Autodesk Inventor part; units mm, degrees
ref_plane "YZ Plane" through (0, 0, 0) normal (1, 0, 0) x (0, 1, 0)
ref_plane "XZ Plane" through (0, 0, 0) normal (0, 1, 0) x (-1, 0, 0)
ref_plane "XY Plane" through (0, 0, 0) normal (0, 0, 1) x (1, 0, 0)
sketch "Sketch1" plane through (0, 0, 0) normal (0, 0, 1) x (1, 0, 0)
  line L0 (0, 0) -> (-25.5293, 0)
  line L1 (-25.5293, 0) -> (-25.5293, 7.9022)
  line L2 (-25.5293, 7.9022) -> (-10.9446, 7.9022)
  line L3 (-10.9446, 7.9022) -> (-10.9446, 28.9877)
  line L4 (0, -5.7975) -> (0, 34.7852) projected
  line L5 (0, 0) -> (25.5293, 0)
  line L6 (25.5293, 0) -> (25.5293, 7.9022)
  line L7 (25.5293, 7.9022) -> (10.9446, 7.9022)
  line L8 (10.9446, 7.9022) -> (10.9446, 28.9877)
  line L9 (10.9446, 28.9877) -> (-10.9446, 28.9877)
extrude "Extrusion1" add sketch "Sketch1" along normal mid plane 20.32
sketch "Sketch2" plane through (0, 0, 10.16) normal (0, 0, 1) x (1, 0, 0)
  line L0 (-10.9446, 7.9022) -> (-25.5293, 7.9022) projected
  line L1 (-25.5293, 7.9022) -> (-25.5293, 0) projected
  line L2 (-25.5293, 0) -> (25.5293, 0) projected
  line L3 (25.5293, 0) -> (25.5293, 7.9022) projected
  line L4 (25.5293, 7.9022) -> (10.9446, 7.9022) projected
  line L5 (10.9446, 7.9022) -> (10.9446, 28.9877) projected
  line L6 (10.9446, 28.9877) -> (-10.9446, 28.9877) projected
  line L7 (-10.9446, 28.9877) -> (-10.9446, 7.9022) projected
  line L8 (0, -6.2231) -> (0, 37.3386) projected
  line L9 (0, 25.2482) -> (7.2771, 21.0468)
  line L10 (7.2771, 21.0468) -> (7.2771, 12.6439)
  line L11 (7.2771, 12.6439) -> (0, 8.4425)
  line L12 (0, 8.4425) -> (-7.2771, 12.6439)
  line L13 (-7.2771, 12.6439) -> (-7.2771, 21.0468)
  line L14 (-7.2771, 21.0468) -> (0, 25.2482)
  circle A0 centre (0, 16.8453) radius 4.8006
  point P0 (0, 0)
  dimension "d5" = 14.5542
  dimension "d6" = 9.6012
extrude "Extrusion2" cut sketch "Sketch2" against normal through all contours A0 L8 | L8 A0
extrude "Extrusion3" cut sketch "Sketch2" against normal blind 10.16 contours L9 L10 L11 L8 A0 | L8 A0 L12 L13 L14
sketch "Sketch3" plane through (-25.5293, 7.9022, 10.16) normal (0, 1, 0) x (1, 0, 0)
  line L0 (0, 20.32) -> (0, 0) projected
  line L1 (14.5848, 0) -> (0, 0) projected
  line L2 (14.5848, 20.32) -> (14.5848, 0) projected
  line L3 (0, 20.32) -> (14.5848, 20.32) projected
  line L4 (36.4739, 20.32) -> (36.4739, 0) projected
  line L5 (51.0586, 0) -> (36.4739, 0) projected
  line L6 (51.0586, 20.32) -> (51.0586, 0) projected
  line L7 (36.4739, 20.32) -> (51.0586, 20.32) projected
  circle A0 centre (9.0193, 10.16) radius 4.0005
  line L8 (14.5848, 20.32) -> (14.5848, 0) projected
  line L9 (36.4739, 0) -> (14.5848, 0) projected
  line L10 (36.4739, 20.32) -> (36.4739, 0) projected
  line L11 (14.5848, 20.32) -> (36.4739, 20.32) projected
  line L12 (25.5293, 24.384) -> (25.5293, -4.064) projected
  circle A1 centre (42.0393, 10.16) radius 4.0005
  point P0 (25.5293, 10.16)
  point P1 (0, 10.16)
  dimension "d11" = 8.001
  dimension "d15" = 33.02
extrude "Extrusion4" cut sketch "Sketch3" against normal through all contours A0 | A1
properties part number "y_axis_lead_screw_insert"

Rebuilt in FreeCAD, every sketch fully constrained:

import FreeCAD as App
import Part
import Sketcher

V = App.Vector
Q = App.Units.Quantity


def add_polygon(sketch, points):
    """Adds a closed chain of lines whose ends are joined by coincident constraints."""
    first, n = sketch.GeometryCount, len(points)
    for a, b in zip(points, points[1:] + points[:1]):
        sketch.addGeometry(Part.LineSegment(App.Vector(*a, 0), App.Vector(*b, 0)), False)
    for i in range(n):
        sketch.addConstraint(Sketcher.Constraint("Coincident", first + i, 2, first + (i + 1) % n, 1))

doc = App.newDocument("Part")
body = doc.addObject("PartDesign::Body", "Body")

# Sketch on XY plane
sketch1 = body.newObject("Sketcher::SketchObject", "Sketch")
sketch1.AttachmentSupport = (doc.getObject("XY_Plane"), [""])
sketch1.MapMode = "FlatFace"
add_polygon(sketch1, [(-26, 0), (26, 0), (26, 8), (11, 8), (11, 29), (-11, 29), (-11, 8), (-26, 8)])  # lines 0-7
sketch1.addConstraint([
    Sketcher.Constraint("Horizontal", 0),
    Sketcher.Constraint("Vertical", 1),
    Sketcher.Constraint("Horizontal", 2),
    Sketcher.Constraint("Vertical", 3),
    Sketcher.Constraint("Horizontal", 4),
    Sketcher.Constraint("Vertical", 5),
    Sketcher.Constraint("Horizontal", 6),
    Sketcher.Constraint("Vertical", 7),
    Sketcher.Constraint("Symmetric", 0, 2, 7, 2, -1, 1),
    Sketcher.Constraint("Symmetric", 2, 2, 5, 2, -2),
    Sketcher.Constraint("DistanceX", 2, 2, 2, 1, Q("0.5742 in")),
    Sketcher.Constraint("DistanceY", 1, 1, 1, 2, Q("0.3111 in")),
    Sketcher.Constraint("DistanceX", 0, 1, 0, 2, Q("51.0586 mm")),
    Sketcher.Constraint("DistanceY", 3, 1, 3, 2, Q("21.0855 mm")),
])
pad1 = body.newObject("PartDesign::Pad", "Pad")
pad1.Profile = sketch1
pad1.Length = Q("0.8 in")
pad1.Midplane = True

# Sketch on XY plane
sketch2 = body.newObject("Sketcher::SketchObject", "Sketch001")
sketch2.AttachmentSupport = (doc.getObject("XY_Plane"), [""])
sketch2.MapMode = "FlatFace"
sketch2.AttachmentOffset = App.Placement(V(0, 0, 0.4 * 25.4), App.Rotation())
sketch2.addGeometry(Part.Circle(V(0, 16.8, 0), V(0, 0, 1), 4.8), False)
sketch2.addConstraint([
    Sketcher.Constraint("PointOnObject", 0, 3, -2),
    Sketcher.Constraint("Diameter", 0, Q("0.378 in")),
    Sketcher.Constraint("DistanceY", -1, 1, 0, 3, Q("0.6632 in")),
])
pocket1 = body.newObject("PartDesign::Pocket", "Pocket")
pocket1.Profile = sketch2
pocket1.Type = "ThroughAll"

# Sketch on XY plane
sketch3 = body.newObject("Sketcher::SketchObject", "Sketch002")
sketch3.AttachmentSupport = (doc.getObject("XY_Plane"), [""])
sketch3.MapMode = "FlatFace"
sketch3.AttachmentOffset = App.Placement(V(0, 0, 0.4 * 25.4), App.Rotation())
add_polygon(sketch3, [(7.3, 21), (0, 25.2), (-7.3, 21), (-7.3, 12.6), (0, 8.4), (7.3, 12.6)])  # lines 0-5
sketch3.addGeometry(Part.Circle(V(0, 16.8, 0), V(0, 0, 1), 4.8), False)  # 6
sketch3.addConstraint([
    Sketcher.Constraint("Vertical", 2),
    Sketcher.Constraint("Vertical", 5),
    Sketcher.Constraint("Symmetric", 2, 2, 4, 2, -2),
    Sketcher.Constraint("PointOnObject", 6, 3, -2),
    Sketcher.Constraint("PointOnObject", 0, 2, -2),
    Sketcher.Constraint("PointOnObject", 3, 2, -2),
    Sketcher.Constraint("Parallel", 0, 3),
    Sketcher.Constraint("Parallel", 1, 4),
    Sketcher.Constraint("Diameter", 6, Q("0.378 in")),
    Sketcher.Constraint("Angle", 0, Q("150.0002 deg")),
    Sketcher.Constraint("DistanceX", 2, 2, 4, 2, Q("0.573 in")),
    Sketcher.Constraint("DistanceY", 2, 2, 2, 1, Q("8.403 mm")),
    Sketcher.Constraint("DistanceY", -1, 1, 6, 3, Q("0.6632 in")),
    Sketcher.Constraint("DistanceY", -1, 1, 2, 2, Q("0.4978 in")),
])
pocket2 = body.newObject("PartDesign::Pocket", "Pocket001")
pocket2.Profile = sketch3
pocket2.Length = Q("0.4 in")

# Sketch on XZ plane
sketch4 = body.newObject("Sketcher::SketchObject", "Sketch003")
sketch4.AttachmentSupport = (doc.getObject("XZ_Plane"), [""])
sketch4.MapMode = "FlatFace"
sketch4.AttachmentOffset = App.Placement(V(0, 0, -0.3111102 * 25.4), App.Rotation())
sketch4.addGeometry([
    Part.Circle(V(-16.5, 0, 0), V(0, 0, 1), 4),
    Part.Circle(V(16.5, 0, 0), V(0, 0, 1), 4),
], False)
sketch4.addConstraint([
    Sketcher.Constraint("Equal", 0, 1),
    Sketcher.Constraint("Symmetric", 0, 3, 1, 3, -1, 1),
    Sketcher.Constraint("PointOnObject", 0, 3, -1),
    Sketcher.Constraint("Diameter", 0, Q("0.315 in")),
    Sketcher.Constraint("DistanceX", 0, 3, 1, 3, Q("1.3 in")),
])
pocket3 = body.newObject("PartDesign::Pocket", "Pocket002")
pocket3.Profile = sketch4
pocket3.Type = "ThroughAll"
pocket3.Reversed = True

doc.recompute()
